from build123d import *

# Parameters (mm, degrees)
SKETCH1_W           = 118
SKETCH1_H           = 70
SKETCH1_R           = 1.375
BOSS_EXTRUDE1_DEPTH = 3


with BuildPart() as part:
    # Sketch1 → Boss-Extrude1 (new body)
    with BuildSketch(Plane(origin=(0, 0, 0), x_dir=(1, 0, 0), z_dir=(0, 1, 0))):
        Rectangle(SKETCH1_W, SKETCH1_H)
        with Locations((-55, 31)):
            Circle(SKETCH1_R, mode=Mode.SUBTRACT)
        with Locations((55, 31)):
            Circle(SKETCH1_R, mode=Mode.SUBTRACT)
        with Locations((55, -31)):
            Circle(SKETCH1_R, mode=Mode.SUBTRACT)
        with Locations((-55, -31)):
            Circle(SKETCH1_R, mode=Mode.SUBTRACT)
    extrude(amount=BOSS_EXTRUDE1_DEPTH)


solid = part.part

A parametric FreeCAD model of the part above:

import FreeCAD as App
import Part
import Sketcher
from FreeCAD import Vector


def add_polygon(sketch, points):
    """Adds a closed chain of lines whose ends are joined by coincident constraints."""
    first, n = sketch.GeometryCount, len(points)
    for a, b in zip(points, points[1:] + points[:1]):
        sketch.addGeometry(Part.LineSegment(App.Vector(*a, 0), App.Vector(*b, 0)), False)
    for i in range(n):
        sketch.addConstraint(Sketcher.Constraint("Coincident", first + i, 2, first + (i + 1) % n, 1))

doc = App.newDocument("Part")
params = doc.addObject("Spreadsheet::Sheet", "Params")
for row, (alias, value) in enumerate([
    ("sketch1_diameter", "2.75 mm"),
    ("sketch1_width", "118 mm"),
    ("sketch1_height", "70 mm"),
    ("pad1_length", "3 mm"),
], start=1):
    params.set(f"A{row}", alias)
    params.set(f"B{row}", "=" + value)
    params.setAlias(f"B{row}", alias)

body = doc.addObject("PartDesign::Body", "Body")

sketch1 = body.newObject("Sketcher::SketchObject", "Sketch")
sketch1.AttachmentSupport = (doc.getObject("XZ_Plane"), [""])
sketch1.MapMode = "FlatFace"
add_polygon(sketch1, [(-59, -35), (-59, 35), (59, 35), (59, -35)])
sketch1.addGeometry(Part.Circle(Vector(-55, 31, 0), Vector(0, 0, 1), 1.375), False)
sketch1.addGeometry(Part.Circle(Vector(55, 31, 0), Vector(0, 0, 1), 1.375), False)
sketch1.addGeometry(Part.Circle(Vector(-55, -31, 0), Vector(0, 0, 1), 1.375), False)
sketch1.addGeometry(Part.Circle(Vector(55, -31, 0), Vector(0, 0, 1), 1.375), False)
sketch1.addConstraint([
    Sketcher.Constraint("Vertical", 0),
    Sketcher.Constraint("Horizontal", 1),
    Sketcher.Constraint("Vertical", 2),
    Sketcher.Constraint("Horizontal", 3),
    Sketcher.Constraint("Equal", 4, 5),
    Sketcher.Constraint("Equal", 5, 6),
    Sketcher.Constraint("Equal", 6, 7),
    Sketcher.Constraint("Symmetric", 5, 3, 6, 3, -1, 1),
    Sketcher.Constraint("Symmetric", 4, 3, 7, 3, -1, 1),
    Sketcher.Constraint("Symmetric", 0, 2, 2, 2, -1, 1),
    Sketcher.Constraint("Symmetric", 4, 3, 5, 3, -2),
    Sketcher.Constraint("Diameter", 4, 2.75),
    Sketcher.Constraint("DistanceX", 1, 1, 1, 2, 118.0),
    Sketcher.Constraint("DistanceY", 0, 1, 0, 2, 70.0),
    Sketcher.Constraint("DistanceX", 4, 3, -1, 1, 55.0),
    Sketcher.Constraint("DistanceY", -1, 1, 4, 3, 31.0),
])
sketch1.setExpression("Constraints[15]", "Params.sketch1_diameter")
sketch1.setExpression("Constraints[16]", "Params.sketch1_width")
sketch1.setExpression("Constraints[17]", "Params.sketch1_height")
pad1 = body.newObject("PartDesign::Pad", "Pad")
pad1.Profile = sketch1
pad1.setExpression("Length", "Params.pad1_length")
pad1.Reversed = True

doc.recompute()
